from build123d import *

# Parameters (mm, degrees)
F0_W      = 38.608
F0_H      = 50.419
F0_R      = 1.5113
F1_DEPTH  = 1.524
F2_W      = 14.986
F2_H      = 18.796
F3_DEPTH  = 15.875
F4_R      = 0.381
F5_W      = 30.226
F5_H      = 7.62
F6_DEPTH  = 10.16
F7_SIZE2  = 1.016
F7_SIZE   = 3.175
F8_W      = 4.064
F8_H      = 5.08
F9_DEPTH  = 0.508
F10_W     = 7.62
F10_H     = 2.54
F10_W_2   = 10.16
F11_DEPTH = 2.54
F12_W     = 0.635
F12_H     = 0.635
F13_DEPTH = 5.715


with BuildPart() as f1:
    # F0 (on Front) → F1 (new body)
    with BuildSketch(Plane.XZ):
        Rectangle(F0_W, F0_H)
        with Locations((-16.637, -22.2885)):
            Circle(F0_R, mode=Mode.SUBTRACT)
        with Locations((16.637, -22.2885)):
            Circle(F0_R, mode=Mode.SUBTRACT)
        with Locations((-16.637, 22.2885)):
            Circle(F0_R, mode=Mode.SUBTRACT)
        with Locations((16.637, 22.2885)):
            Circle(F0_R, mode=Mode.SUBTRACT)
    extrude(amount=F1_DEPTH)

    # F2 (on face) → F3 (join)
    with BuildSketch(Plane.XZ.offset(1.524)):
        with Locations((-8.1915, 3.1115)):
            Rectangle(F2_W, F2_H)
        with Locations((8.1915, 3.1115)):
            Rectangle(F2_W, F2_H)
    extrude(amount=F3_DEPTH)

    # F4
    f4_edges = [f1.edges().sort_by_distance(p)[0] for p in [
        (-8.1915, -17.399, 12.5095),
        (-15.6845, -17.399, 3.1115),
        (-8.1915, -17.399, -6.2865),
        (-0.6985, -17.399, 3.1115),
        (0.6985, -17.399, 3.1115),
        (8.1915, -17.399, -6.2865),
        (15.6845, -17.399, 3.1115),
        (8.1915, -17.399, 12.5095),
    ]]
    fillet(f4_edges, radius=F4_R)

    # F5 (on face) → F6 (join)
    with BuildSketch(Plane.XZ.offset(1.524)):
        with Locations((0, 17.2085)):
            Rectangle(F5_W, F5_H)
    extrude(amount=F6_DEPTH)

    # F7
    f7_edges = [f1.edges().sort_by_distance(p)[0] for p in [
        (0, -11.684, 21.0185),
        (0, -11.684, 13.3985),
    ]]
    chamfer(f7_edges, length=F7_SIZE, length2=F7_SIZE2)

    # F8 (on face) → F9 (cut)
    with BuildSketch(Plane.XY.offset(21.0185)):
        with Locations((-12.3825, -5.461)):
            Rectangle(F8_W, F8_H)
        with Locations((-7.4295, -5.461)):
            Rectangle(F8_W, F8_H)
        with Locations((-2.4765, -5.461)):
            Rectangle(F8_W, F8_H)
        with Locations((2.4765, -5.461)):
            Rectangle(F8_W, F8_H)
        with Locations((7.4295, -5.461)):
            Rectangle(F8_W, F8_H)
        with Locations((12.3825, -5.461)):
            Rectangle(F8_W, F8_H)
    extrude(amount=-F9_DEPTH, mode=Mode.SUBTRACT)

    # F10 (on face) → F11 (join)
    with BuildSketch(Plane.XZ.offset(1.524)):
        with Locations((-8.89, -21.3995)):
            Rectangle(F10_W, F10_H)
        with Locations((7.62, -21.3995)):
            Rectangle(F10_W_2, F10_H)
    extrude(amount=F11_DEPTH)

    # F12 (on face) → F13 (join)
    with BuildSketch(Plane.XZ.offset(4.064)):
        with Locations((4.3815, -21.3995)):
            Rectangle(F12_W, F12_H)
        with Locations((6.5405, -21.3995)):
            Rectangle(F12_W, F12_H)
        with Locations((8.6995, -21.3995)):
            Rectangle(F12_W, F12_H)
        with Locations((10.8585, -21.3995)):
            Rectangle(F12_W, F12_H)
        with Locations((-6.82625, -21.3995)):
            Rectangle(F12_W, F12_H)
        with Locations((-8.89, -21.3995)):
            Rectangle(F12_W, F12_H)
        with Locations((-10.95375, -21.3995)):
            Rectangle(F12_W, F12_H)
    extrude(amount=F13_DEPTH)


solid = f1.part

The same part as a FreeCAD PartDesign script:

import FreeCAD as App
import Part
import Sketcher

V = App.Vector
Q = App.Units.Quantity


def edges_at(feature, points):
    """Names of the edges that pass closest to the given points."""
    edges = feature.Shape.Edges
    near = lambda p: min(range(len(edges)), key=lambda i: edges[i].distToShape(Part.Vertex(*p))[0])
    return sorted({f"Edge{near(p) + 1}" for p in points})


def add_polygon(sketch, points):
    """Adds a closed chain of lines whose ends are joined by coincident constraints."""
    first, n = sketch.GeometryCount, len(points)
    for a, b in zip(points, points[1:] + points[:1]):
        sketch.addGeometry(Part.LineSegment(App.Vector(*a, 0), App.Vector(*b, 0)), False)
    for i in range(n):
        sketch.addConstraint(Sketcher.Constraint("Coincident", first + i, 2, first + (i + 1) % n, 1))

doc = App.newDocument("Part")
body = doc.addObject("PartDesign::Body", "Body")

sketch1 = doc.addObject("Sketcher::SketchObject", "Sketch")
body.addObject(sketch1)
sketch1.AttachmentSupport = (doc.XZ_Plane, [""])
sketch1.MapMode = "FlatFace"
add_polygon(sketch1, [(-19.3, 25.2), (-19.3, -25.2), (19.3, -25.2), (19.3, 25.2)])
sketch1.addGeometry(Part.Circle(V(-16.6, -22.3, 0), V(0, 0, 1), 1.5), False)
sketch1.addGeometry(Part.Circle(V(16.6, -22.3, 0), V(0, 0, 1), 1.5), False)
sketch1.addGeometry(Part.Circle(V(-16.6, 22.3, 0), V(0, 0, 1), 1.5), False)
sketch1.addGeometry(Part.Circle(V(16.6, 22.3, 0), V(0, 0, 1), 1.5), False)
sketch1.addConstraint(Sketcher.Constraint("Vertical", 0))
sketch1.addConstraint(Sketcher.Constraint("Horizontal", 1))
sketch1.addConstraint(Sketcher.Constraint("Vertical", 2))
sketch1.addConstraint(Sketcher.Constraint("Horizontal", 3))
sketch1.addConstraint(Sketcher.Constraint("Equal", 4, 5))
sketch1.addConstraint(Sketcher.Constraint("Equal", 5, 6))
sketch1.addConstraint(Sketcher.Constraint("Equal", 6, 7))
sketch1.addConstraint(Sketcher.Constraint("Symmetric", 5, 3, 6, 3, -1, 1))
sketch1.addConstraint(Sketcher.Constraint("Symmetric", 4, 3, 7, 3, -1, 1))
sketch1.addConstraint(Sketcher.Constraint("Symmetric", 0, 2, 2, 2, -1, 1))
sketch1.addConstraint(Sketcher.Constraint("Symmetric", 4, 3, 5, 3, -2))
sketch1.addConstraint(Sketcher.Constraint("Diameter", 4, Q("0.119 in")))
sketch1.addConstraint(Sketcher.Constraint("DistanceX", 1, 1, 1, 2, Q("1.52 in")))
sketch1.addConstraint(Sketcher.Constraint("DistanceY", 0, 2, 0, 1, Q("1.985 in")))
sketch1.addConstraint(Sketcher.Constraint("DistanceX", 4, 3, 5, 3, Q("1.31 in")))
sketch1.addConstraint(Sketcher.Constraint("DistanceY", 0, 2, 6, 3, Q("1.87 in")))
pad1 = doc.addObject("PartDesign::Pad", "Pad")
body.addObject(pad1)
pad1.Profile = sketch1
pad1.Length = Q("0.06 in")

sketch2 = doc.addObject("Sketcher::SketchObject", "Sketch001")
body.addObject(sketch2)
sketch2.AttachmentSupport = (doc.XZ_Plane, [""])
sketch2.MapMode = "FlatFace"
sketch2.AttachmentOffset = App.Placement(V(0, 0, 0.06 * 25.4), App.Rotation())
add_polygon(sketch2, [(-16, 13), (-16, -6), (-1, -6), (-1, 13)])
add_polygon(sketch2, [(1, 13), (1, -6), (16, -6), (16, 13)])
sketch2.addConstraint(Sketcher.Constraint("Vertical", 0))
sketch2.addConstraint(Sketcher.Constraint("Horizontal", 1))
sketch2.addConstraint(Sketcher.Constraint("Vertical", 2))
sketch2.addConstraint(Sketcher.Constraint("Horizontal", 3))
sketch2.addConstraint(Sketcher.Constraint("Vertical", 4))
sketch2.addConstraint(Sketcher.Constraint("Horizontal", 5))
sketch2.addConstraint(Sketcher.Constraint("Vertical", 6))
sketch2.addConstraint(Sketcher.Constraint("Horizontal", 7))
sketch2.addConstraint(Sketcher.Constraint("Symmetric", 1, 2, 4, 2, -2))
sketch2.addConstraint(Sketcher.Constraint("Symmetric", 3, 2, 6, 2, -2))
sketch2.addConstraint(Sketcher.Constraint("DistanceX", 1, 1, 1, 2, Q("0.59 in")))
sketch2.addConstraint(Sketcher.Constraint("DistanceY", 0, 2, 0, 1, Q("0.74 in")))
sketch2.addConstraint(Sketcher.Constraint("DistanceX", 1, 2, 4, 2, Q("0.055 in")))
sketch2.addConstraint(Sketcher.Constraint("DistanceY", 0, 2, -1, 1, Q("0.2475 in")))
pad2 = doc.addObject("PartDesign::Pad", "Pad001")
body.addObject(pad2)
pad2.Profile = sketch2
pad2.Length = Q("0.625 in")
doc.recompute()

fillet = doc.addObject("PartDesign::Fillet", "Fillet")
body.addObject(fillet)
fillet.Base = (pad2, edges_at(pad2, [
    (-8.191, -17.399, 12.509),
    (-15.684, -17.399, 3.111),
    (-8.191, -17.399, -6.287),
    (-0.699, -17.399, 3.111),
    (0.699, -17.399, 3.111),
    (8.191, -17.399, -6.287),
    (15.684, -17.399, 3.111),
    (8.191, -17.399, 12.509),
]))
fillet.Radius = Q("0.015 in")

sketch3 = doc.addObject("Sketcher::SketchObject", "Sketch002")
body.addObject(sketch3)
sketch3.AttachmentSupport = (doc.XZ_Plane, [""])
sketch3.MapMode = "FlatFace"
sketch3.AttachmentOffset = App.Placement(V(0, 0, 0.06 * 25.4), App.Rotation())
add_polygon(sketch3, [(-15, 21), (-15, 13), (15, 13), (15, 21)])
sketch3.addConstraint(Sketcher.Constraint("Vertical", 0))
sketch3.addConstraint(Sketcher.Constraint("Horizontal", 1))
sketch3.addConstraint(Sketcher.Constraint("Vertical", 2))
sketch3.addConstraint(Sketcher.Constraint("Horizontal", 3))
sketch3.addConstraint(Sketcher.Constraint("DistanceY", 0, 2, 0, 1, Q("0.3 in")))
sketch3.addConstraint(Sketcher.Constraint("DistanceX", 1, 1, 1, 2, Q("1.19 in")))
sketch3.addConstraint(Sketcher.Constraint("DistanceX", 0, 2, -1, 1, Q("0.595 in")))
sketch3.addConstraint(Sketcher.Constraint("DistanceY", -1, 1, 0, 2, Q("0.5275 in")))
pad3 = doc.addObject("PartDesign::Pad", "Pad002")
body.addObject(pad3)
pad3.Profile = sketch3
pad3.Length = Q("0.4 in")
doc.recompute()

chamfer = doc.addObject("PartDesign::Chamfer", "Chamfer")
body.addObject(chamfer)
chamfer.Base = (pad3, edges_at(pad3, [(0, -11.684, 21.018), (0, -11.684, 13.399)]))
chamfer.ChamferType = "Two distances"
chamfer.Size = Q("0.125 in")
chamfer.Size2 = Q("0.04 in")

sketch4 = doc.addObject("Sketcher::SketchObject", "Sketch003")
body.addObject(sketch4)
sketch4.AttachmentSupport = (doc.XY_Plane, [""])
sketch4.MapMode = "FlatFace"
sketch4.AttachmentOffset = App.Placement(V(0, 0, 0.8275 * 25.4), App.Rotation())
add_polygon(sketch4, [(-14.4, -2.9), (-14.4, -8), (-10.4, -8), (-10.4, -2.9)])
add_polygon(sketch4, [(-9.5, -2.9), (-9.5, -8), (-5.4, -8), (-5.4, -2.9)])
add_polygon(sketch4, [(-4.5, -2.9), (-4.5, -8), (-0.4, -8), (-0.4, -2.9)])
add_polygon(sketch4, [(0.4, -2.9), (0.4, -8), (4.5, -8), (4.5, -2.9)])
add_polygon(sketch4, [(5.4, -2.9), (5.4, -8), (9.5, -8), (9.5, -2.9)])
add_polygon(sketch4, [(10.4, -2.9), (10.4, -8), (14.4, -8), (14.4, -2.9)])
sketch4.addConstraint(Sketcher.Constraint("Vertical", 0))
sketch4.addConstraint(Sketcher.Constraint("Horizontal", 1))
sketch4.addConstraint(Sketcher.Constraint("Vertical", 2))
sketch4.addConstraint(Sketcher.Constraint("Horizontal", 3))
sketch4.addConstraint(Sketcher.Constraint("Vertical", 4))
sketch4.addConstraint(Sketcher.Constraint("Horizontal", 5))
sketch4.addConstraint(Sketcher.Constraint("Vertical", 6))
sketch4.addConstraint(Sketcher.Constraint("Horizontal", 7))
sketch4.addConstraint(Sketcher.Constraint("Vertical", 8))
sketch4.addConstraint(Sketcher.Constraint("Horizontal", 9))
sketch4.addConstraint(Sketcher.Constraint("Vertical", 10))
sketch4.addConstraint(Sketcher.Constraint("Horizontal", 11))
sketch4.addConstraint(Sketcher.Constraint("Vertical", 12))
sketch4.addConstraint(Sketcher.Constraint("Horizontal", 13))
sketch4.addConstraint(Sketcher.Constraint("Vertical", 14))
sketch4.addConstraint(Sketcher.Constraint("Horizontal", 15))
sketch4.addConstraint(Sketcher.Constraint("Vertical", 16))
sketch4.addConstraint(Sketcher.Constraint("Horizontal", 17))
sketch4.addConstraint(Sketcher.Constraint("Vertical", 18))
sketch4.addConstraint(Sketcher.Constraint("Horizontal", 19))
sketch4.addConstraint(Sketcher.Constraint("Vertical", 20))
sketch4.addConstraint(Sketcher.Constraint("Horizontal", 21))
sketch4.addConstraint(Sketcher.Constraint("Vertical", 22))
sketch4.addConstraint(Sketcher.Constraint("Horizontal", 23))
sketch4.addConstraint(Sketcher.Constraint("Symmetric", 9, 2, 12, 2, -2))
sketch4.addConstraint(Sketcher.Constraint("Symmetric", 11, 2, 14, 2, -2))
sketch4.addConstraint(Sketcher.Constraint("Symmetric", 5, 2, 16, 2, -2))
sketch4.addConstraint(Sketcher.Constraint("Symmetric", 7, 2, 18, 2, -2))
sketch4.addConstraint(Sketcher.Constraint("Symmetric", 1, 2, 20, 2, -2))
sketch4.addConstraint(Sketcher.Constraint("Symmetric", 3, 2, 22, 2, -2))
sketch4.addConstraint(Sketcher.Constraint("Horizontal", 1, 2, 4, 2))
sketch4.addConstraint(Sketcher.Constraint("Horizontal", 3, 2, 6, 2))
sketch4.addConstraint(Sketcher.Constraint("Horizontal", 5, 2, 8, 2))
sketch4.addConstraint(Sketcher.Constraint("Horizontal", 7, 2, 10, 2))
sketch4.addConstraint(Sketcher.Constraint("Equal", 3, 5))
sketch4.addConstraint(Sketcher.Constraint("Equal", 7, 9))
sketch4.addConstraint(Sketcher.Constraint("DistanceY", 0, 2, 0, 1, Q("0.2 in")))
sketch4.addConstraint(Sketcher.Constraint("DistanceX", 1, 1, 1, 2, Q("0.16 in")))
sketch4.addConstraint(Sketcher.Constraint("DistanceX", 1, 2, 8, 2, Q("0.23 in")))
sketch4.addConstraint(Sketcher.Constraint("DistanceX", 5, 2, 12, 2, Q("0.23 in")))
sketch4.addConstraint(Sketcher.Constraint("DistanceY", 0, 2, -1, 1, Q("0.315 in")))
sketch4.addConstraint(Sketcher.Constraint("DistanceX", 1, 2, 4, 2, Q("0.035 in")))
pocket1 = doc.addObject("PartDesign::Pocket", "Pocket")
body.addObject(pocket1)
pocket1.Profile = sketch4
pocket1.Length = Q("0.02 in")

sketch5 = doc.addObject("Sketcher::SketchObject", "Sketch004")
body.addObject(sketch5)
sketch5.AttachmentSupport = (doc.XZ_Plane, [""])
sketch5.MapMode = "FlatFace"
sketch5.AttachmentOffset = App.Placement(V(0, 0, 0.06 * 25.4), App.Rotation())
add_polygon(sketch5, [(-12.7, -20.1), (-12.7, -22.7), (-5.1, -22.7), (-5.1, -20.1)])
add_polygon(sketch5, [(2.5, -20.1), (2.5, -22.7), (12.7, -22.7), (12.7, -20.1)])
sketch5.addConstraint(Sketcher.Constraint("Vertical", 0))
sketch5.addConstraint(Sketcher.Constraint("Horizontal", 1))
sketch5.addConstraint(Sketcher.Constraint("Vertical", 2))
sketch5.addConstraint(Sketcher.Constraint("Horizontal", 3))
sketch5.addConstraint(Sketcher.Constraint("Vertical", 4))
sketch5.addConstraint(Sketcher.Constraint("Horizontal", 5))
sketch5.addConstraint(Sketcher.Constraint("Vertical", 6))
sketch5.addConstraint(Sketcher.Constraint("Horizontal", 7))
sketch5.addConstraint(Sketcher.Constraint("Symmetric", 0, 2, 5, 2, -2))
sketch5.addConstraint(Sketcher.Constraint("Horizontal", 3, 2, 6, 2))
sketch5.addConstraint(Sketcher.Constraint("DistanceX", 1, 1, 1, 2, Q("0.3 in")))
sketch5.addConstraint(Sketcher.Constraint("DistanceX", 5, 1, 5, 2, Q("0.4 in")))
sketch5.addConstraint(Sketcher.Constraint("DistanceY", 0, 2, 0, 1, Q("0.1 in")))
sketch5.addConstraint(Sketcher.Constraint("DistanceX", 0, 2, 5, 2, Q("1 in")))
sketch5.addConstraint(Sketcher.Constraint("DistanceY", 0, 2, -1, 1, Q("0.8925 in")))
pad4 = doc.addObject("PartDesign::Pad", "Pad003")
body.addObject(pad4)
pad4.Profile = sketch5
pad4.Length = Q("0.1 in")

sketch6 = doc.addObject("Sketcher::SketchObject", "Sketch005")
body.addObject(sketch6)
sketch6.AttachmentSupport = (doc.XZ_Plane, [""])
sketch6.MapMode = "FlatFace"
sketch6.AttachmentOffset = App.Placement(V(0, 0, 0.16 * 25.4), App.Rotation())
add_polygon(sketch6, [(4.1, -21.1), (4.1, -21.7), (4.7, -21.7), (4.7, -21.1)])
add_polygon(sketch6, [(6.2, -21.1), (6.2, -21.7), (6.9, -21.7), (6.9, -21.1)])
add_polygon(sketch6, [(8.4, -21.1), (8.4, -21.7), (9, -21.7), (9, -21.1)])
add_polygon(sketch6, [(10.5, -21.1), (10.5, -21.7), (11.2, -21.7), (11.2, -21.1)])
add_polygon(sketch6, [(-7.1, -21.1), (-7.1, -21.7), (-6.5, -21.7), (-6.5, -21.1)])
add_polygon(sketch6, [(-9.2, -21.1), (-9.2, -21.7), (-8.6, -21.7), (-8.6, -21.1)])
add_polygon(sketch6, [(-11.3, -21.1), (-11.3, -21.7), (-10.6, -21.7), (-10.6, -21.1)])
sketch6.addConstraint(Sketcher.Constraint("Vertical", 0))
sketch6.addConstraint(Sketcher.Constraint("Horizontal", 1))
sketch6.addConstraint(Sketcher.Constraint("Vertical", 2))
sketch6.addConstraint(Sketcher.Constraint("Horizontal", 3))
sketch6.addConstraint(Sketcher.Constraint("Vertical", 4))
sketch6.addConstraint(Sketcher.Constraint("Horizontal", 5))
sketch6.addConstraint(Sketcher.Constraint("Vertical", 6))
sketch6.addConstraint(Sketcher.Constraint("Horizontal", 7))
sketch6.addConstraint(Sketcher.Constraint("Vertical", 8))
sketch6.addConstraint(Sketcher.Constraint("Horizontal", 9))
sketch6.addConstraint(Sketcher.Constraint("Vertical", 10))
sketch6.addConstraint(Sketcher.Constraint("Horizontal", 11))
sketch6.addConstraint(Sketcher.Constraint("Vertical", 12))
sketch6.addConstraint(Sketcher.Constraint("Horizontal", 13))
sketch6.addConstraint(Sketcher.Constraint("Vertical", 14))
sketch6.addConstraint(Sketcher.Constraint("Horizontal", 15))
sketch6.addConstraint(Sketcher.Constraint("Vertical", 16))
sketch6.addConstraint(Sketcher.Constraint("Horizontal", 17))
sketch6.addConstraint(Sketcher.Constraint("Vertical", 18))
sketch6.addConstraint(Sketcher.Constraint("Horizontal", 19))
sketch6.addConstraint(Sketcher.Constraint("Vertical", 20))
sketch6.addConstraint(Sketcher.Constraint("Horizontal", 21))
sketch6.addConstraint(Sketcher.Constraint("Vertical", 22))
sketch6.addConstraint(Sketcher.Constraint("Horizontal", 23))
sketch6.addConstraint(Sketcher.Constraint("Vertical", 24))
sketch6.addConstraint(Sketcher.Constraint("Horizontal", 25))
sketch6.addConstraint(Sketcher.Constraint("Vertical", 26))
sketch6.addConstraint(Sketcher.Constraint("Horizontal", 27))
sketch6.addConstraint(Sketcher.Constraint("Horizontal", 1, 2, 4, 2))
sketch6.addConstraint(Sketcher.Constraint("Horizontal", 3, 2, 6, 2))
sketch6.addConstraint(Sketcher.Constraint("Horizontal", 5, 2, 8, 2))
sketch6.addConstraint(Sketcher.Constraint("Horizontal", 7, 2, 10, 2))
sketch6.addConstraint(Sketcher.Constraint("Horizontal", 9, 2, 12, 2))
sketch6.addConstraint(Sketcher.Constraint("Horizontal", 11, 2, 14, 2))
sketch6.addConstraint(Sketcher.Constraint("Horizontal", 13, 2, 16, 2))
sketch6.addConstraint(Sketcher.Constraint("Horizontal", 15, 2, 18, 2))
sketch6.addConstraint(Sketcher.Constraint("Horizontal", 17, 2, 20, 2))
sketch6.addConstraint(Sketcher.Constraint("Horizontal", 19, 2, 22, 2))
sketch6.addConstraint(Sketcher.Constraint("Horizontal", 21, 2, 24, 2))
sketch6.addConstraint(Sketcher.Constraint("Horizontal", 23, 2, 26, 2))
sketch6.addConstraint(Sketcher.Constraint("Equal", 3, 5))
sketch6.addConstraint(Sketcher.Constraint("Equal", 7, 9))
sketch6.addConstraint(Sketcher.Constraint("Equal", 11, 13))
sketch6.addConstraint(Sketcher.Constraint("Equal", 15, 17))
sketch6.addConstraint(Sketcher.Constraint("Equal", 19, 21))
sketch6.addConstraint(Sketcher.Constraint("Equal", 23, 25))
sketch6.addConstraint(Sketcher.Constraint("Equal", 27, 0))
sketch6.addConstraint(Sketcher.Constraint("DistanceX", 1, 1, 1, 2, Q("0.025 in")))
sketch6.addConstraint(Sketcher.Constraint("DistanceX", -1, 1, 0, 2, Q("0.16 in")))
sketch6.addConstraint(Sketcher.Constraint("DistanceY", 2, 2, -1, 1, Q("0.83 in")))
sketch6.addConstraint(Sketcher.Constraint("DistanceX", -1, 1, 5, 2, Q("0.27 in")))
sketch6.addConstraint(Sketcher.Constraint("DistanceX", -1, 1, 8, 2, Q("0.33 in")))
sketch6.addConstraint(Sketcher.Constraint("DistanceX", -1, 1, 13, 2, Q("0.44 in")))
sketch6.addConstraint(Sketcher.Constraint("DistanceX", 16, 2, -1, 1, Q("0.28125 in")))
sketch6.addConstraint(Sketcher.Constraint("DistanceX", 20, 2, -1, 1, Q("0.3625 in")))
sketch6.addConstraint(Sketcher.Constraint("DistanceX", 24, 2, 16, 2, Q("0.1625 in")))
pad5 = doc.addObject("PartDesign::Pad", "Pad004")
body.addObject(pad5)
pad5.Profile = sketch6
pad5.Length = Q("0.225 in")

doc.recompute()
